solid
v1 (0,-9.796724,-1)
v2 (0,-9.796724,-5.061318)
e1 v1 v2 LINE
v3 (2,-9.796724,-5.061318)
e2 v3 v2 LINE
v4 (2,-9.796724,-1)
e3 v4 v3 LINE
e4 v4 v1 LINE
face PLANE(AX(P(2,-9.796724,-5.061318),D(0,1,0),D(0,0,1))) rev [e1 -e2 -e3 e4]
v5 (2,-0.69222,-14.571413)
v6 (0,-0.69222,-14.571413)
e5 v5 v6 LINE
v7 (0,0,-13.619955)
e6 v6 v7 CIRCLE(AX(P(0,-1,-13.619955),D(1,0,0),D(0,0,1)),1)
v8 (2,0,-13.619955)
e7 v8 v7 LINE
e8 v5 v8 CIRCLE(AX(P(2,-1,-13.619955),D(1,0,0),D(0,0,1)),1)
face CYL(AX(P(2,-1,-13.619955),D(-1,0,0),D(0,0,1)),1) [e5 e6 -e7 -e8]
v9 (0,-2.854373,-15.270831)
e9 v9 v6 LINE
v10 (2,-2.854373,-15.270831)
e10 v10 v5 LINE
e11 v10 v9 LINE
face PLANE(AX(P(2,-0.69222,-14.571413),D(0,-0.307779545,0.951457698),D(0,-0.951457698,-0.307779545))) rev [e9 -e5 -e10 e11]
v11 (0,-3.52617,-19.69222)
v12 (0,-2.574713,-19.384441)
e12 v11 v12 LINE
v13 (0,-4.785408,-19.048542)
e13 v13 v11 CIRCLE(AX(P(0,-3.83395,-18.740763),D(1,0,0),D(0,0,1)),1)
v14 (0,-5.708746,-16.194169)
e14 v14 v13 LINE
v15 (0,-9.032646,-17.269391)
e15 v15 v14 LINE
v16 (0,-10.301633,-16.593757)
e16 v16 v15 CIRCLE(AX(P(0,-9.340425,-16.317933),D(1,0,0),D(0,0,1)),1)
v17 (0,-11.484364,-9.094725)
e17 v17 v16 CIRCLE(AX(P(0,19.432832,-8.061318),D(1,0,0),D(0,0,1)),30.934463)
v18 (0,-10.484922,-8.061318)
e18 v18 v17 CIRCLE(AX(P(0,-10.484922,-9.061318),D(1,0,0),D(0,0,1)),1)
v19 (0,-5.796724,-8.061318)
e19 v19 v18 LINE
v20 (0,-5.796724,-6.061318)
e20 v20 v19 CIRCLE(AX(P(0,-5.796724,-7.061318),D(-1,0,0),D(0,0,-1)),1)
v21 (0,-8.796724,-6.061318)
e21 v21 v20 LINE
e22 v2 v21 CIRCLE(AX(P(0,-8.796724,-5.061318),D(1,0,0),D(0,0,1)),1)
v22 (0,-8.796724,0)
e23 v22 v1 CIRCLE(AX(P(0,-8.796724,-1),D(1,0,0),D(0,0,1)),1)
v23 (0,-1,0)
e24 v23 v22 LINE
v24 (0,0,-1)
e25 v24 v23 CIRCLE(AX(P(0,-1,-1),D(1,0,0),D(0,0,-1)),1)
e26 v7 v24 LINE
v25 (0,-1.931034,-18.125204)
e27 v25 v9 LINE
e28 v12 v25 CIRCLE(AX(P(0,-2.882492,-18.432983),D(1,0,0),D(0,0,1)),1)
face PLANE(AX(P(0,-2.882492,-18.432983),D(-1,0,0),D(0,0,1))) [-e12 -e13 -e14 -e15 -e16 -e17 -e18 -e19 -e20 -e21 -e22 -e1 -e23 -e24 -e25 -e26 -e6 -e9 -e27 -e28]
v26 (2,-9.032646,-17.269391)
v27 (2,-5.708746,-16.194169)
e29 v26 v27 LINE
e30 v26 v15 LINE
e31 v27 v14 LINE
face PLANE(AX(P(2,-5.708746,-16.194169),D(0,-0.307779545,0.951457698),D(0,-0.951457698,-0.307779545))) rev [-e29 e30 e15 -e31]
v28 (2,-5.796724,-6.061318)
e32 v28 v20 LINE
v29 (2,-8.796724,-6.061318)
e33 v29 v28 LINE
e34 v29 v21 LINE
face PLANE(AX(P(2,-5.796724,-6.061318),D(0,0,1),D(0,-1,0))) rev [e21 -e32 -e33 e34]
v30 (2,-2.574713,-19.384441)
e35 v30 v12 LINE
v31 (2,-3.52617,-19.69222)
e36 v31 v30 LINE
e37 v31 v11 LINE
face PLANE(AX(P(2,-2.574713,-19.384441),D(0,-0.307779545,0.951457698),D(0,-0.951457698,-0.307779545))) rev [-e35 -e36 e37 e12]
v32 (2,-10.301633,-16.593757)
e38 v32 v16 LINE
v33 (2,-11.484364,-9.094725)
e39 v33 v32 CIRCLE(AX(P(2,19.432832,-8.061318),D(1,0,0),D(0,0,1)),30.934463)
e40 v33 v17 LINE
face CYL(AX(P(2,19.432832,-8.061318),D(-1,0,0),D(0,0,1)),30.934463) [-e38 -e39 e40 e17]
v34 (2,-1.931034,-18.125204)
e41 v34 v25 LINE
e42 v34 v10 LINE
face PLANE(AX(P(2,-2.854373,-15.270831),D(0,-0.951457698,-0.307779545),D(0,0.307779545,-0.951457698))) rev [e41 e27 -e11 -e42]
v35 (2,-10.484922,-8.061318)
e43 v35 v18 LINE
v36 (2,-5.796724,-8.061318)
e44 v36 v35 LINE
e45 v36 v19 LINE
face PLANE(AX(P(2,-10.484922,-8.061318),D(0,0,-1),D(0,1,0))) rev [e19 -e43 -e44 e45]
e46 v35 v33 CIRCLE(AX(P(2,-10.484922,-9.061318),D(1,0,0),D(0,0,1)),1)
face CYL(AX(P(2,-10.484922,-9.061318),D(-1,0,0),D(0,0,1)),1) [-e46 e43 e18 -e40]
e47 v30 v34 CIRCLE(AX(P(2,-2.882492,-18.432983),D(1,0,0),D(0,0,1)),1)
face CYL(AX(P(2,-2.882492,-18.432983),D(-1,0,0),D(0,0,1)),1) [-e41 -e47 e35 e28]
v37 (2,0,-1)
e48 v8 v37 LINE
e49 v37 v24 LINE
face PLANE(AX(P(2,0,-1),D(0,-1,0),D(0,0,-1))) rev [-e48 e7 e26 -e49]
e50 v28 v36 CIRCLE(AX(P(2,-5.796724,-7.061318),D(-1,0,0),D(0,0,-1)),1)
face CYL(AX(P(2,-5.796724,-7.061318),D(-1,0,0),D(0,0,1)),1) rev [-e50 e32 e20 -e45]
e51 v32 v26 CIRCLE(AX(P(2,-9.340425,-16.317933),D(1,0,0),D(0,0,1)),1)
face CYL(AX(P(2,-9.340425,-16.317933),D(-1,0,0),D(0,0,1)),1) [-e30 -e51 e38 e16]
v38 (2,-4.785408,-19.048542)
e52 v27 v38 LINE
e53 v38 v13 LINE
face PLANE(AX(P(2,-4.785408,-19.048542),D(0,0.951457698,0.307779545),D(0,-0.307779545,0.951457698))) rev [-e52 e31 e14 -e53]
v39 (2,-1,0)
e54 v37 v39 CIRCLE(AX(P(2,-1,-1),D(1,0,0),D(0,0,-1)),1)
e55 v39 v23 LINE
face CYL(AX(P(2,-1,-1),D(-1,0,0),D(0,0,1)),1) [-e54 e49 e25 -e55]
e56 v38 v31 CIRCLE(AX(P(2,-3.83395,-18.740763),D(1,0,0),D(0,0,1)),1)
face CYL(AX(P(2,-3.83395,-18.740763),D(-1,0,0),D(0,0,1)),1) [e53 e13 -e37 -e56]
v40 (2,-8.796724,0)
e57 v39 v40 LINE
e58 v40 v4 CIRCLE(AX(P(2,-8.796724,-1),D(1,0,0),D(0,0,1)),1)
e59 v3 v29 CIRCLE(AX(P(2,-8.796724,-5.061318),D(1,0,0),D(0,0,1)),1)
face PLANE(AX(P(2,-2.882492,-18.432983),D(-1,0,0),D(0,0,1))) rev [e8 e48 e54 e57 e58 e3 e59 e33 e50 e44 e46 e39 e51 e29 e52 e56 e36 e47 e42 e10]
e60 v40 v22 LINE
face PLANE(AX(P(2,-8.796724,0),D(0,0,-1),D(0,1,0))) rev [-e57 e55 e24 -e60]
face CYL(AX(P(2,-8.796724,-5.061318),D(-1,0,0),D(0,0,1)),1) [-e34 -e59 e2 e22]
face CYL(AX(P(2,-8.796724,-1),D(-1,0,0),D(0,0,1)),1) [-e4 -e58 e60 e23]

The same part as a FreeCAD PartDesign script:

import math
import FreeCAD as App
import Part
import Sketcher

V = App.Vector

doc = App.newDocument("Part")
body = doc.addObject("PartDesign::Body", "Body")

sketch1 = doc.addObject("Sketcher::SketchObject", "Sketch")
body.addObject(sketch1)
sketch1.AttachmentSupport = (doc.YZ_Plane, [""])
sketch1.MapMode = "FlatFace"
sketch1.addGeometry(Part.LineSegment(V(0, -13.6, 0), V(0, -1, 0)), False)
sketch1.addGeometry(Part.ArcOfCircle(Part.Circle(V(-1, -1, 0), V(0, 0, 1), 1), math.radians(0), math.radians(90)), False)
sketch1.addGeometry(Part.LineSegment(V(-1, 0, 0), V(-8.8, 0, 0)), False)
sketch1.addGeometry(Part.ArcOfCircle(Part.Circle(V(-8.8, -1, 0), V(0, 0, 1), 1), math.radians(90), math.radians(180)), False)
sketch1.addGeometry(Part.LineSegment(V(-9.8, -1, 0), V(-9.8, -5.1, 0)), False)
sketch1.addGeometry(Part.ArcOfCircle(Part.Circle(V(-8.8, -5.1, 0), V(0, 0, 1), 1), math.radians(-180), math.radians(-90)), False)
sketch1.addGeometry(Part.LineSegment(V(-8.8, -6.1, 0), V(-5.8, -6.1, 0)), False)
sketch1.addGeometry(Part.ArcOfCircle(Part.Circle(V(-5.8, -7.1, 0), V(0, 0, 1), 1), math.radians(-90), math.radians(90)), False)
sketch1.addGeometry(Part.LineSegment(V(-5.8, -8.1, 0), V(-10.5, -8.1, 0)), False)
sketch1.addGeometry(Part.ArcOfCircle(Part.Circle(V(-10.5, -9.1, 0), V(0, 0, 1), 1), math.radians(90), math.radians(182)), False)
sketch1.addGeometry(Part.ArcOfCircle(Part.Circle(V(19.4, -8.1, 0), V(0, 0, 1), 30.9), math.radians(-178.09), math.radians(-163.99)), False)
sketch1.addGeometry(Part.ArcOfCircle(Part.Circle(V(-9.3, -16.3, 0), V(0, 0, 1), 1), math.radians(-164), math.radians(-72)), False)
sketch1.addGeometry(Part.LineSegment(V(-9, -17.3, 0), V(-5.7, -16.2, 0)), False)
sketch1.addGeometry(Part.LineSegment(V(-5.7, -16.2, 0), V(-4.8, -19, 0)), False)
sketch1.addGeometry(Part.ArcOfCircle(Part.Circle(V(-3.8, -18.7, 0), V(0, 0, 1), 1), math.radians(-162), math.radians(-72)), False)
sketch1.addGeometry(Part.LineSegment(V(-3.5, -19.7, 0), V(-2.6, -19.4, 0)), False)
sketch1.addGeometry(Part.ArcOfCircle(Part.Circle(V(-2.9, -18.4, 0), V(0, 0, 1), 1), math.radians(-72), math.radians(18)), False)
sketch1.addGeometry(Part.LineSegment(V(-1.9, -18.1, 0), V(-2.9, -15.3, 0)), False)
sketch1.addGeometry(Part.LineSegment(V(-2.9, -15.3, 0), V(-0.7, -14.6, 0)), False)
sketch1.addGeometry(Part.ArcOfCircle(Part.Circle(V(-1, -13.6, 0), V(0, 0, 1), 1), math.radians(-72), math.radians(0)), False)
sketch1.addConstraint(Sketcher.Constraint("Tangent", 0, 2, 1, 1))
sketch1.addConstraint(Sketcher.Constraint("Tangent", 1, 2, 2, 1))
sketch1.addConstraint(Sketcher.Constraint("Tangent", 2, 2, 3, 1))
sketch1.addConstraint(Sketcher.Constraint("Tangent", 3, 2, 4, 1))
sketch1.addConstraint(Sketcher.Constraint("Tangent", 4, 2, 5, 1))
sketch1.addConstraint(Sketcher.Constraint("Tangent", 5, 2, 6, 1))
sketch1.addConstraint(Sketcher.Constraint("Tangent", 6, 2, 7, 2))
sketch1.addConstraint(Sketcher.Constraint("Tangent", 7, 1, 8, 1))
sketch1.addConstraint(Sketcher.Constraint("Tangent", 8, 2, 9, 1))
sketch1.addConstraint(Sketcher.Constraint("Tangent", 9, 2, 10, 1))
sketch1.addConstraint(Sketcher.Constraint("Tangent", 10, 2, 11, 1))
sketch1.addConstraint(Sketcher.Constraint("Tangent", 11, 2, 12, 1))
sketch1.addConstraint(Sketcher.Constraint("Coincident", 12, 2, 13, 1))
sketch1.addConstraint(Sketcher.Constraint("Tangent", 13, 2, 14, 1))
sketch1.addConstraint(Sketcher.Constraint("Tangent", 14, 2, 15, 1))
sketch1.addConstraint(Sketcher.Constraint("Tangent", 15, 2, 16, 1))
sketch1.addConstraint(Sketcher.Constraint("Tangent", 16, 2, 17, 1))
sketch1.addConstraint(Sketcher.Constraint("Coincident", 17, 2, 18, 1))
sketch1.addConstraint(Sketcher.Constraint("Tangent", 18, 2, 19, 1))
sketch1.addConstraint(Sketcher.Constraint("Tangent", 19, 2, 0, 1))
sketch1.addConstraint(Sketcher.Constraint("Vertical", 0))
sketch1.addConstraint(Sketcher.Constraint("Horizontal", 2))
sketch1.addConstraint(Sketcher.Constraint("Vertical", 4))
sketch1.addConstraint(Sketcher.Constraint("Horizontal", 6))
sketch1.addConstraint(Sketcher.Constraint("Horizontal", 8))
sketch1.addConstraint(Sketcher.Constraint("Equal", 1, 3))
sketch1.addConstraint(Sketcher.Constraint("Equal", 3, 5))
sketch1.addConstraint(Sketcher.Constraint("Equal", 5, 7))
sketch1.addConstraint(Sketcher.Constraint("Equal", 7, 9))
sketch1.addConstraint(Sketcher.Constraint("Equal", 9, 11))
sketch1.addConstraint(Sketcher.Constraint("Equal", 11, 14))
sketch1.addConstraint(Sketcher.Constraint("Equal", 14, 16))
sketch1.addConstraint(Sketcher.Constraint("Equal", 16, 19))
sketch1.addConstraint(Sketcher.Constraint("PointOnObject", 0, 2, -2))
sketch1.addConstraint(Sketcher.Constraint("PointOnObject", 1, 2, -1))
sketch1.addConstraint(Sketcher.Constraint("Perpendicular", 12, 13))
sketch1.addConstraint(Sketcher.Constraint("Perpendicular", 13, 15))
sketch1.addConstraint(Sketcher.Constraint("Perpendicular", 15, 17))
sketch1.addConstraint(Sketcher.Constraint("Perpendicular", 17, 18))
sketch1.addConstraint(Sketcher.Constraint("Horizontal", 10, 3, 7, 1))
sketch1.addConstraint(Sketcher.Constraint("Equal", 13, 17))
sketch1.addConstraint(Sketcher.Constraint("Radius", 1, 1.0))
sketch1.addConstraint(Sketcher.Constraint("DistanceX", 6, 1, 6, 2, 3.0))
sketch1.addConstraint(Sketcher.Constraint("Distance", 13, 3.0))
sketch1.addConstraint(Sketcher.Constraint("Distance", 15, 1.0))
sketch1.addConstraint(Sketcher.Constraint("Radius", 10, 30.934462))
sketch1.addConstraint(Sketcher.Constraint("DistanceY", 4, 2, 4, 1, 4.061318))
sketch1.addConstraint(Sketcher.Constraint("DistanceX", 11, 3, 7, 3, 3.543701))
sketch1.addConstraint(Sketcher.Constraint("DistanceX", 11, 2, 12, 2, 3.323899))
sketch1.addConstraint(Sketcher.Constraint("DistanceY", 15, 2, 13, 2, 0.335899))
sketch1.addConstraint(Sketcher.Constraint("DistanceX", 2, 2, 2, 1, 7.796724))
sketch1.addConstraint(Sketcher.Constraint("DistanceX", 8, 2, 8, 1, 4.688198))
pad1 = doc.addObject("PartDesign::Pad", "Pad")
body.addObject(pad1)
pad1.Profile = sketch1
pad1.Length = 2

doc.recompute()
